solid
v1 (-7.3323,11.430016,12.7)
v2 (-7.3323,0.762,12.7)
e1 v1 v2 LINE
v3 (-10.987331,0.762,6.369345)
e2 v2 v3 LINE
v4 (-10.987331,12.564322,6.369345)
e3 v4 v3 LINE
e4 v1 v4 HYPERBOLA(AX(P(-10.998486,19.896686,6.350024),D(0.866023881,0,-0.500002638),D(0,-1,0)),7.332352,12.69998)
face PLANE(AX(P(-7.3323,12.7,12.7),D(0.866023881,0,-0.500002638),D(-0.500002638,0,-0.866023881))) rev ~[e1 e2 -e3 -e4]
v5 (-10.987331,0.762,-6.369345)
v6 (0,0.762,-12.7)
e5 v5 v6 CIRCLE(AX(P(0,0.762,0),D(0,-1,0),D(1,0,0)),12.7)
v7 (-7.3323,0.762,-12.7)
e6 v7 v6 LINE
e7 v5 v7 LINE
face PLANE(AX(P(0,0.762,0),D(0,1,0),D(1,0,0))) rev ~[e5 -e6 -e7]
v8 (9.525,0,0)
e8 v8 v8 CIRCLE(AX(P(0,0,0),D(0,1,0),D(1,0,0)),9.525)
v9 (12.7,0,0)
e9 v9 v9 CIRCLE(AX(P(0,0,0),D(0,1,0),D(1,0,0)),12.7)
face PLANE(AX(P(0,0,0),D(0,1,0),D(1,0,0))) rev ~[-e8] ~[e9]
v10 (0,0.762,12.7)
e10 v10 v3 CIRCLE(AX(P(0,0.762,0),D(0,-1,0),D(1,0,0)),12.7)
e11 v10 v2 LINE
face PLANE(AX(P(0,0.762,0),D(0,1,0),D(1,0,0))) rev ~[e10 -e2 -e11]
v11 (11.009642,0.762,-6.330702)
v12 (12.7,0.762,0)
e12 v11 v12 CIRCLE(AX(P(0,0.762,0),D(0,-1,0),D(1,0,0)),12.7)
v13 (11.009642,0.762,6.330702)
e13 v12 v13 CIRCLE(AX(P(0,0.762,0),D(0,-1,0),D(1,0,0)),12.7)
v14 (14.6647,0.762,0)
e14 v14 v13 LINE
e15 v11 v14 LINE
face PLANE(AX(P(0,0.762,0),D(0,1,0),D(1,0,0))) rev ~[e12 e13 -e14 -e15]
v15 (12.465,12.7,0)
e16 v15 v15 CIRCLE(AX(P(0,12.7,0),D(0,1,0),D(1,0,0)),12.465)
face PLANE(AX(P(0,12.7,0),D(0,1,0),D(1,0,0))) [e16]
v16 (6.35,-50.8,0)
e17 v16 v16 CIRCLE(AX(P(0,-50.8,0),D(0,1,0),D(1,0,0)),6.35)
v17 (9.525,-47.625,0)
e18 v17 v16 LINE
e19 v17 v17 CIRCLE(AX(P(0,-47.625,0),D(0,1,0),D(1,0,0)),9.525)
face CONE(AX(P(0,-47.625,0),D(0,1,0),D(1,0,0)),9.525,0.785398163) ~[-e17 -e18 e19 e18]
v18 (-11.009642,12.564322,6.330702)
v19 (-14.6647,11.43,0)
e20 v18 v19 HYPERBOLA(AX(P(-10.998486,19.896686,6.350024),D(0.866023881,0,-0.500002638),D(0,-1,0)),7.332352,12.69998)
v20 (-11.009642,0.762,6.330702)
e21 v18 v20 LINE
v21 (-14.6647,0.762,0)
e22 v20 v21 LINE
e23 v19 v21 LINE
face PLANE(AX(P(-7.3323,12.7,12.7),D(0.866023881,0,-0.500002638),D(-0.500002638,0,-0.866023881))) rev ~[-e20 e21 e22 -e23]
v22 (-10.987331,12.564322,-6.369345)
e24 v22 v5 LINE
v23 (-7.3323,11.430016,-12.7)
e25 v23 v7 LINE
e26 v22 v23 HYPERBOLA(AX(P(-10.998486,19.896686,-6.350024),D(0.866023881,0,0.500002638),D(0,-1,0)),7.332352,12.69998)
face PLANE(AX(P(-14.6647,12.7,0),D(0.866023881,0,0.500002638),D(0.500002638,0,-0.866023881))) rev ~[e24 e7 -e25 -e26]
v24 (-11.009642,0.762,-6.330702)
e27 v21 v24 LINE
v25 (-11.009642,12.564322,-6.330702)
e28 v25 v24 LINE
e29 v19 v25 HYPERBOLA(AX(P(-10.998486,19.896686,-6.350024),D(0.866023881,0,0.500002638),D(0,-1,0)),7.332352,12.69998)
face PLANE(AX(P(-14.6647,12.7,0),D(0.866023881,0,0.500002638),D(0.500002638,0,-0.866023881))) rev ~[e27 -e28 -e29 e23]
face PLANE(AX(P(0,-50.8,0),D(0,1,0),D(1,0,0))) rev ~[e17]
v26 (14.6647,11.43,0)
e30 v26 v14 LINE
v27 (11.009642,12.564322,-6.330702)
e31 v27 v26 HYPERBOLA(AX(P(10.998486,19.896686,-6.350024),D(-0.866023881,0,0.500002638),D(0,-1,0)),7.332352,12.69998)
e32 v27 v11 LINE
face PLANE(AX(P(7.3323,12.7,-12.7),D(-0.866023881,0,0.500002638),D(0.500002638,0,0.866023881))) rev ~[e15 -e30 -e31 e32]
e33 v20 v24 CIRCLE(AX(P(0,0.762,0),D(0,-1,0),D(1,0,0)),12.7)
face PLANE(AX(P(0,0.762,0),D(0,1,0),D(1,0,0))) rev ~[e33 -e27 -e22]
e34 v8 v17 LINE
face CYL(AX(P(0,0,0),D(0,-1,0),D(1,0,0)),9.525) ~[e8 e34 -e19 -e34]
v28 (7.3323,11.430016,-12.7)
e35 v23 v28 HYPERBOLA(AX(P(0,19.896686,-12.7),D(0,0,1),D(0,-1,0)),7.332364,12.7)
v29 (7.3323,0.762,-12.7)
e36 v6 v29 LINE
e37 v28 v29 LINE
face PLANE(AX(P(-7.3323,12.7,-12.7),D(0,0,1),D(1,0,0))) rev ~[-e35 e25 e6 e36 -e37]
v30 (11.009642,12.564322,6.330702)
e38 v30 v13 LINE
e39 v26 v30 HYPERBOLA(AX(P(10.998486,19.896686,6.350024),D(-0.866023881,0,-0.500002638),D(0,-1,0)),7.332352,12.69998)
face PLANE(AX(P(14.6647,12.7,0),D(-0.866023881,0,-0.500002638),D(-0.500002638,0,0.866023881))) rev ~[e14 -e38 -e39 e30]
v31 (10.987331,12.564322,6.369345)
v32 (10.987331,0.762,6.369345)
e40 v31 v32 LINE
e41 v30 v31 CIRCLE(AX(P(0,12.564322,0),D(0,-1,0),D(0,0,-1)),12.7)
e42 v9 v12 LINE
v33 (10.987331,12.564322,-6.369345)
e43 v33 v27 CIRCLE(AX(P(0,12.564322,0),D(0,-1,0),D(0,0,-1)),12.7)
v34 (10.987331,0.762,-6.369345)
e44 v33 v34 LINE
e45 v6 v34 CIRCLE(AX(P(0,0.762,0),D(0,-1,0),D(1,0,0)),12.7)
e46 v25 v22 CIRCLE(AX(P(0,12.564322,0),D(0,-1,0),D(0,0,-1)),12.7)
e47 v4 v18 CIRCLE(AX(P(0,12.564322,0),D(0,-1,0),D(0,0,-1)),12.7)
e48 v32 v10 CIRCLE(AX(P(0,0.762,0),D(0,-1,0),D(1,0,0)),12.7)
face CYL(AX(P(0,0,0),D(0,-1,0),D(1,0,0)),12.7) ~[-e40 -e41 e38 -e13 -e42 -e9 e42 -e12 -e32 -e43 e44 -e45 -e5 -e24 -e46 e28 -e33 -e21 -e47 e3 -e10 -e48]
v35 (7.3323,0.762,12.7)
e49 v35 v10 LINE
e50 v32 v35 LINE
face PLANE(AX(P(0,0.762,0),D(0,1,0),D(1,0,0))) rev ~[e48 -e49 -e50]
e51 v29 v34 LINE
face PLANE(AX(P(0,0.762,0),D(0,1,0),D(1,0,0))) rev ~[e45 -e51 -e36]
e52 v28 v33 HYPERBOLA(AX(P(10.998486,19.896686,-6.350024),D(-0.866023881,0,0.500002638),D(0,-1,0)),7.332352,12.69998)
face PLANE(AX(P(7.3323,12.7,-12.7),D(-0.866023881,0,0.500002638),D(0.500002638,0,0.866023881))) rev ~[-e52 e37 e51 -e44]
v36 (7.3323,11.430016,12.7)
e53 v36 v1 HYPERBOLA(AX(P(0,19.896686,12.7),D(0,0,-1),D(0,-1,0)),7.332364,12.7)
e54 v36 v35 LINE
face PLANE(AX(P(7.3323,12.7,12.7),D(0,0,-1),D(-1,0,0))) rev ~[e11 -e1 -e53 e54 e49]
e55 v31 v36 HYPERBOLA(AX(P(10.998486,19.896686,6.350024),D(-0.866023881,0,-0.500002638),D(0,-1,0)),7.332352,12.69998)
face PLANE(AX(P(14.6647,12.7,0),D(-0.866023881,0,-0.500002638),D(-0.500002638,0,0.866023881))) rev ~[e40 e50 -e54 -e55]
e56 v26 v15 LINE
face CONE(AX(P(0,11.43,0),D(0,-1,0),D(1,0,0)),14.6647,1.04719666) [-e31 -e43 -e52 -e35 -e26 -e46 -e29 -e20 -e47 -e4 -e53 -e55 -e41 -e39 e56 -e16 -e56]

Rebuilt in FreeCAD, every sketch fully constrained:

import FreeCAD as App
import Part
import Sketcher

V = App.Vector
Q = App.Units.Quantity


def edges_at(feature, points):
    """Names of the edges that pass closest to the given points."""
    edges = feature.Shape.Edges
    near = lambda p: min(range(len(edges)), key=lambda i: edges[i].distToShape(Part.Vertex(*p))[0])
    return sorted({f"Edge{near(p) + 1}" for p in points})

doc = App.newDocument("Part")
params = doc.addObject("Spreadsheet::Sheet", "Params")
for row, (alias, value) in enumerate([
    ("sketch1_height", "2 in"),
    ("sketch1_width", "0.375 in"),
    ("revolution_angle", "360 deg"),
    ("chamfer_size", "0.125 in"),
    ("sketch2_diameter", "1 in"),
    ("pad1_length", "0.5 in"),
    ("pad2_length", "0.47 in"),
    ("sketch4_height", "0.05 in"),
    ("groove_angle", "360 deg"),
], start=1):
    params.set(f"A{row}", alias)
    params.set(f"B{row}", "=" + value)
    params.setAlias(f"B{row}", alias)

body = doc.addObject("PartDesign::Body", "Body")

# Sketch on XY plane
sketch1 = doc.addObject("Sketcher::SketchObject", "Sketch")
body.addObject(sketch1)
sketch1.AttachmentSupport = (doc.XY_Plane, [""])
sketch1.MapMode = "FlatFace"
sketch1.addGeometry([
    Part.LineSegment(V(10, 0, 0), V(0, 0, 0)),
    Part.LineSegment(V(0, 0, 0), V(0, -51, 0)),
    Part.LineSegment(V(0, -51, 0), V(10, -51, 0)),
    Part.LineSegment(V(10, -51, 0), V(10, 0, 0)),
], False)
sketch1.addConstraint([
    Sketcher.Constraint("Coincident", 0, 2, 1, 1),
    Sketcher.Constraint("Coincident", 1, 2, 2, 1),
    Sketcher.Constraint("Coincident", 2, 2, 3, 1),
    Sketcher.Constraint("Coincident", 3, 2, 0, 1),
    Sketcher.Constraint("Horizontal", 0),
    Sketcher.Constraint("Vertical", 1),
    Sketcher.Constraint("Horizontal", 2),
    Sketcher.Constraint("Vertical", 3),
    Sketcher.Constraint("Coincident", 0, 2, -1, 1),
    Sketcher.Constraint("DistanceY", 1, 2, 1, 1, Q("2 in")),
    Sketcher.Constraint("DistanceX", 0, 2, 0, 1, Q("0.375 in")),
])
sketch1.setExpression("Constraints[9]", "Params.sketch1_height")
sketch1.setExpression("Constraints[10]", "Params.sketch1_width")
revolution = doc.addObject("PartDesign::Revolution", "Revolution")
body.addObject(revolution)
revolution.Profile = sketch1
revolution.ReferenceAxis = (sketch1, ["V_Axis"])
revolution.setExpression("Angle", "Params.revolution_angle")
doc.recompute()

chamfer = doc.addObject("PartDesign::Chamfer", "Chamfer")
body.addObject(chamfer)
chamfer.Base = (revolution, edges_at(revolution, [(-9.525, -50.8, 0)]))
chamfer.setExpression("Size", "Params.chamfer_size")

# Sketch on XZ plane
sketch2 = doc.addObject("Sketcher::SketchObject", "Sketch001")
body.addObject(sketch2)
sketch2.AttachmentSupport = (doc.XZ_Plane, [""])
sketch2.MapMode = "FlatFace"
sketch2.addGeometry(Part.Circle(V(0, 0, 0), V(0, 0, 1), 13), False)
sketch2.addConstraint([
    Sketcher.Constraint("Coincident", 0, 3, -1, 1),
    Sketcher.Constraint("Diameter", 0, Q("1 in")),
])
sketch2.setExpression("Constraints[1]", "Params.sketch2_diameter")
pad1 = doc.addObject("PartDesign::Pad", "Pad")
body.addObject(pad1)
pad1.Profile = sketch2
pad1.setExpression("Length", "Params.pad1_length")
pad1.Reversed = True

# Sketch on XZ plane
sketch3 = doc.addObject("Sketcher::SketchObject", "Sketch002")
body.addObject(sketch3)
sketch3.AttachmentSupport = (doc.XZ_Plane, [""])
sketch3.MapMode = "FlatFace"
sketch3.AttachmentOffset = App.Placement(V(0, 0, -0.5 * 25.4), App.Rotation())
sketch3.addGeometry([
    Part.LineSegment(V(7, 13, 0), V(15, 0, 0)),  # 0
    Part.LineSegment(V(15, 0, 0), V(7, -13, 0)),  # 1
    Part.LineSegment(V(7, -13, 0), V(-7, -13, 0)),  # 2
    Part.LineSegment(V(-7, -13, 0), V(-15, 0, 0)),  # 3
    Part.LineSegment(V(-15, 0, 0), V(-7, 13, 0)),  # 4
    Part.LineSegment(V(-7, 13, 0), V(7, 13, 0)),  # 5
], False)
sketch3.addConstraint([
    Sketcher.Constraint("Coincident", 0, 2, 1, 1),
    Sketcher.Constraint("Coincident", 1, 2, 2, 1),
    Sketcher.Constraint("Coincident", 2, 2, 3, 1),
    Sketcher.Constraint("Coincident", 3, 2, 4, 1),
    Sketcher.Constraint("Coincident", 4, 2, 5, 1),
    Sketcher.Constraint("Coincident", 5, 2, 0, 1),
    Sketcher.Constraint("Horizontal", 2),
    Sketcher.Constraint("Horizontal", 5),
    Sketcher.Constraint("Symmetric", 0, 2, 3, 2, -1, 1),
    Sketcher.Constraint("Symmetric", 1, 2, 4, 2, -1, 1),
    Sketcher.Constraint("PointOnObject", 0, 2, -1),
    Sketcher.Constraint("Parallel", 0, 3),
    Sketcher.Constraint("Vertical", 2, 2, 4, 2),
    Sketcher.Constraint("Angle", 0, Q("-59.9998 deg")),
    Sketcher.Constraint("DistanceY", 2, 2, 4, 2, Q("1 in")),
    Sketcher.Constraint("DistanceX", 2, 2, 2, 1, Q("14.6646 mm")),
])
pad2 = doc.addObject("PartDesign::Pad", "Pad001")
body.addObject(pad2)
pad2.Profile = sketch3
pad2.setExpression("Length", "Params.pad2_length")

# Sketch on XY plane
sketch4 = doc.addObject("Sketcher::SketchObject", "Sketch003")
body.addObject(sketch4)
sketch4.AttachmentSupport = (doc.XY_Plane, [""])
sketch4.MapMode = "FlatFace"
sketch4.addGeometry([
    Part.LineSegment(V(14.7, 12.7, 0), V(12.5, 12.7, 0)),
    Part.LineSegment(V(12.5, 12.7, 0), V(14.7, 11.4, 0)),
    Part.LineSegment(V(14.7, 11.4, 0), V(14.7, 12.7, 0)),
], False)
sketch4.addConstraint([
    Sketcher.Constraint("Coincident", 0, 2, 1, 1),
    Sketcher.Constraint("Coincident", 1, 2, 2, 1),
    Sketcher.Constraint("Coincident", 2, 2, 0, 1),
    Sketcher.Constraint("Horizontal", 0),
    Sketcher.Constraint("Vertical", 2),
    Sketcher.Constraint("Angle", 1, Q("-30 deg")),
    Sketcher.Constraint("DistanceY", 2, 1, 2, 2, Q("0.05 in")),
    Sketcher.Constraint("DistanceY", -1, 1, 0, 2, Q("0.5 in")),
    Sketcher.Constraint("DistanceX", -1, 1, 0, 2, Q("12.465 mm")),
])
sketch4.setExpression("Constraints[6]", "Params.sketch4_height")
groove = doc.addObject("PartDesign::Groove", "Groove")
body.addObject(groove)
groove.Profile = sketch4
groove.ReferenceAxis = (sketch4, ["V_Axis"])
groove.setExpression("Angle", "Params.groove_angle")

doc.recompute()
